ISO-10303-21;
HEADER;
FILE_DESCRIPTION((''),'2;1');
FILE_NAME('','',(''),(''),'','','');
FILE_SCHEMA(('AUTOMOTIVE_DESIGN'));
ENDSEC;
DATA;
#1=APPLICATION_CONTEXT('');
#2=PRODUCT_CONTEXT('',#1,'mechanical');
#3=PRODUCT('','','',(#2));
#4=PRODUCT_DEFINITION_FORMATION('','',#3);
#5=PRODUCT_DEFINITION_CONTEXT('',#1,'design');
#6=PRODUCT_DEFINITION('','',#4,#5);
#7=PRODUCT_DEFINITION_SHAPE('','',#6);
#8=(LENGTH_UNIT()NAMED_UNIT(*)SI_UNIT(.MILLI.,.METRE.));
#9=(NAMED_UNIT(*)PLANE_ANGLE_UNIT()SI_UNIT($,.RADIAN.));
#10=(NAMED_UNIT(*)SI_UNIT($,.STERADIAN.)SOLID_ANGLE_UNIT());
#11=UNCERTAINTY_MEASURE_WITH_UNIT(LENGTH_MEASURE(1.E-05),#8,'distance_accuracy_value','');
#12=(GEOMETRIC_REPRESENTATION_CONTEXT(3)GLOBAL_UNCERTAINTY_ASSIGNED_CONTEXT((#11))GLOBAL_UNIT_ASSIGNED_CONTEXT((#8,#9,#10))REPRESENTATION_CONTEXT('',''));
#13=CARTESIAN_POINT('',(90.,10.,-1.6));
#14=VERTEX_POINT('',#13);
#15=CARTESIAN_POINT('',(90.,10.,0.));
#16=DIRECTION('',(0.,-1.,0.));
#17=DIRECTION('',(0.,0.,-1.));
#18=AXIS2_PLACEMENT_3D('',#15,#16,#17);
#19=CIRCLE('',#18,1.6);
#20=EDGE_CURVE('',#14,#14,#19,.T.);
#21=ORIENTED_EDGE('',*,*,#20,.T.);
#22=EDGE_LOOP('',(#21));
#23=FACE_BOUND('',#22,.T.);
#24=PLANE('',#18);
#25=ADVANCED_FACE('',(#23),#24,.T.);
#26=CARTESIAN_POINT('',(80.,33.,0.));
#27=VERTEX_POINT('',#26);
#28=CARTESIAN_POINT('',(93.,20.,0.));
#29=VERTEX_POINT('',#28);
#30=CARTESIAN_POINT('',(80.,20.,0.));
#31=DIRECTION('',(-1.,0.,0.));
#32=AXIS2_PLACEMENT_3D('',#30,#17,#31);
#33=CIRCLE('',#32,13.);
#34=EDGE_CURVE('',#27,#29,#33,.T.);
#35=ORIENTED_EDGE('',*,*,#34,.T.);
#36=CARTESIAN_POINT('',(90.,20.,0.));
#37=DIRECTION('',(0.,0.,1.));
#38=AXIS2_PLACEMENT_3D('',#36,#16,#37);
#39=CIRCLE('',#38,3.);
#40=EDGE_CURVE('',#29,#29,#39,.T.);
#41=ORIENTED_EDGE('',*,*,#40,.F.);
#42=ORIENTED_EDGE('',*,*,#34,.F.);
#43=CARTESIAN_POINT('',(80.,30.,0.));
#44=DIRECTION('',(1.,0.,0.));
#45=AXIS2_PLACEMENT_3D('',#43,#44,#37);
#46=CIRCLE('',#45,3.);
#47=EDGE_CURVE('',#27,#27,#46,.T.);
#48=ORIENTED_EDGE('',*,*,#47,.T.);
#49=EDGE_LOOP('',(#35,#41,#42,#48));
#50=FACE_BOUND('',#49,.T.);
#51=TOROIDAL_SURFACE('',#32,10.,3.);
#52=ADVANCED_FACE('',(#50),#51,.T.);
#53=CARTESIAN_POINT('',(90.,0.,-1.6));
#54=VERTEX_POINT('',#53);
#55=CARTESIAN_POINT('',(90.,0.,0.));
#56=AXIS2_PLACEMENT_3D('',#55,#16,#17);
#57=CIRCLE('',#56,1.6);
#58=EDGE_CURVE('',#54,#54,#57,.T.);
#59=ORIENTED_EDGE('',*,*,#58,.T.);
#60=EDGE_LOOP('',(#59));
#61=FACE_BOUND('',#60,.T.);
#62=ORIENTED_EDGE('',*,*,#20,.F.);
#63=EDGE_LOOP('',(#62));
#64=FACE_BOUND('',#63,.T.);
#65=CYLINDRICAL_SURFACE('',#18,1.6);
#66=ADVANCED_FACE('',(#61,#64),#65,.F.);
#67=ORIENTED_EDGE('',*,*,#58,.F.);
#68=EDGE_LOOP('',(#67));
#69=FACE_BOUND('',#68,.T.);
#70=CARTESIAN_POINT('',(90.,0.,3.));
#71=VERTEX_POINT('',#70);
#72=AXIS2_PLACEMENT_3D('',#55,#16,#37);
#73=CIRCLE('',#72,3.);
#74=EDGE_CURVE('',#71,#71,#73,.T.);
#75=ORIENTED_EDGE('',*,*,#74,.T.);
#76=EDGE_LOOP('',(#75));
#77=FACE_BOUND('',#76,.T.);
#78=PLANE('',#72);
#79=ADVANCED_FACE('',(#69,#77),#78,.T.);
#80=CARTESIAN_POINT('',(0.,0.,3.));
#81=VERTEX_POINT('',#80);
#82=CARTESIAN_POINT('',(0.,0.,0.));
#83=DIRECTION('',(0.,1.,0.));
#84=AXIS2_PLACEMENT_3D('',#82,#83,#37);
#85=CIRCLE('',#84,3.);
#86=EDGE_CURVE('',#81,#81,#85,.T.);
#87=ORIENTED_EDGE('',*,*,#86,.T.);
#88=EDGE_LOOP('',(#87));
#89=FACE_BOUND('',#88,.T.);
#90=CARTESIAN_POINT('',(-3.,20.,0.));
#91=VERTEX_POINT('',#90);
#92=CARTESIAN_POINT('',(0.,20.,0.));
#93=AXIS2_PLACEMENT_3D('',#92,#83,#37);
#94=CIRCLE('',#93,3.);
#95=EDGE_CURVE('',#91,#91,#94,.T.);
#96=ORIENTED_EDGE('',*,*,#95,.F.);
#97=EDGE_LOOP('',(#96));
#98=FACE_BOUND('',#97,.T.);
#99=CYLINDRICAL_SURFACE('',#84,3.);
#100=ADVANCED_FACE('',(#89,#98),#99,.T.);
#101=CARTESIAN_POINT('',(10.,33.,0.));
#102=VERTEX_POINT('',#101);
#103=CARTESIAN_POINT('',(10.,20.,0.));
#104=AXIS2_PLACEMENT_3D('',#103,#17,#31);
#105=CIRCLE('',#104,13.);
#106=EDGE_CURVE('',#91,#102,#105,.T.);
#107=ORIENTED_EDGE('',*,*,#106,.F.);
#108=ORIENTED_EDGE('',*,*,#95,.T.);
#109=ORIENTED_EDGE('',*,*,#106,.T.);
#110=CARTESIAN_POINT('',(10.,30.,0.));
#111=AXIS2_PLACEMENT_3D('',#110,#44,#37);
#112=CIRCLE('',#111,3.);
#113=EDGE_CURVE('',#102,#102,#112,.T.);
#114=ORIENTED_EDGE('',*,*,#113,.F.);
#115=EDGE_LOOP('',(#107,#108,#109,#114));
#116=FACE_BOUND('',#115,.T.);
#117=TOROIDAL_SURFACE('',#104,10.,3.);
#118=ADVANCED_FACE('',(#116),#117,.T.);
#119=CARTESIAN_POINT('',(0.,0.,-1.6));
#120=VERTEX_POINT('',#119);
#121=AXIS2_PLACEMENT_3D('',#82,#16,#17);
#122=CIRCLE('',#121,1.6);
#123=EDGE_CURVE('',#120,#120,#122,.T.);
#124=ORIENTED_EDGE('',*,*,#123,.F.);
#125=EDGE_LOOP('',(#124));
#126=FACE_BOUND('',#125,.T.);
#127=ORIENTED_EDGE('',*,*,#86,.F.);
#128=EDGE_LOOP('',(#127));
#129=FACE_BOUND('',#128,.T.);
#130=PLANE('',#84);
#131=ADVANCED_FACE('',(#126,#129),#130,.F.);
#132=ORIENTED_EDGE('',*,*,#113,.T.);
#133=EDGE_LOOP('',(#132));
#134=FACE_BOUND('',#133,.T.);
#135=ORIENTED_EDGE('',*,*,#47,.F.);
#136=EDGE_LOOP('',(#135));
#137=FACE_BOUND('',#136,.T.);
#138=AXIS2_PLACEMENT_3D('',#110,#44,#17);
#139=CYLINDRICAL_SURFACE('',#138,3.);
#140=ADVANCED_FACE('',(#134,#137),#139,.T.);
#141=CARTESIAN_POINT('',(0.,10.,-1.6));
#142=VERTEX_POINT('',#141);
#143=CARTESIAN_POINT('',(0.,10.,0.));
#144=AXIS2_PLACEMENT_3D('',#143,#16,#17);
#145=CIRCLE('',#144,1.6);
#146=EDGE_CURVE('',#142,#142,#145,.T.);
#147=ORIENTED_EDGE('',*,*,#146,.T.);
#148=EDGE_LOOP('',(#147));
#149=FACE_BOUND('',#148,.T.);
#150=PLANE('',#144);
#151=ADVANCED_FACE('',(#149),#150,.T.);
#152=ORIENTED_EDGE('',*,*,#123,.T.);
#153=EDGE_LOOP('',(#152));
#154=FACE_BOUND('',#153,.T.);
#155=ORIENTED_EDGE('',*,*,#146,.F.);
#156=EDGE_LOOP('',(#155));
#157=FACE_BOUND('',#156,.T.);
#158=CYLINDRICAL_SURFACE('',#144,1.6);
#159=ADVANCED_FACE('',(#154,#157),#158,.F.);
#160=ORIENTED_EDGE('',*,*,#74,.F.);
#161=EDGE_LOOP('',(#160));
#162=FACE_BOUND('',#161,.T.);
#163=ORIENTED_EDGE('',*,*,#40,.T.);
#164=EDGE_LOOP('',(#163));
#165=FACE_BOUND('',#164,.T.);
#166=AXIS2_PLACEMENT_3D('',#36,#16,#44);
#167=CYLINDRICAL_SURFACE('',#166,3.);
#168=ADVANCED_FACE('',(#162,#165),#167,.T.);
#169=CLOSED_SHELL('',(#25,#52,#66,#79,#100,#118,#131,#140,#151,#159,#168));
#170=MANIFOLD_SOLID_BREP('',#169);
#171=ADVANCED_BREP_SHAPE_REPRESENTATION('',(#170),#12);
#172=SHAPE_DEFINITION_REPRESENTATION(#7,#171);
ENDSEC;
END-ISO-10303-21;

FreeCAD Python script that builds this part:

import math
import FreeCAD as App
import Part
import Sketcher
Q = App.Units.Quantity

doc = App.newDocument("Part")
params = doc.addObject("Spreadsheet::Sheet", "Params")
for row, (alias, value) in enumerate([
    ("sketch1_diameter", "6 mm"),
    ("sketch2_radius", "10 mm"),
    ("sketch2_width", "70 mm"),
    ("sketch2_height", "20 mm"),
    ("sketch3_diameter", "3.2 mm"),
    ("pocket1_length", "10 mm"),
], start=1):
    params.set(f"A{row}", alias)
    params.set(f"B{row}", "=" + value)
    params.setAlias(f"B{row}", alias)

body = doc.addObject("PartDesign::Body", "Body")

# Sketch on XZ plane
sketch1 = body.newObject("Sketcher::SketchObject", "Sketch")
sketch1.AttachmentSupport = (doc.getObject("XZ_Plane"), [""])
sketch1.MapMode = "FlatFace"
sketch1.addGeometry(Part.Circle(App.Vector(0, 0, 0), App.Vector(0, 0, 1), 3), False)
sketch1.addConstraint([
    Sketcher.Constraint("Coincident", 0, 3, -1, 1),
    Sketcher.Constraint("Diameter", 0, Q("6 mm")),
])
sketch1.setExpression("Constraints[1]", "Params.sketch1_diameter")

# Sketch on XY plane
sketch2 = body.newObject("Sketcher::SketchObject", "Sketch001")
sketch2.AttachmentSupport = (doc.getObject("XY_Plane"), [""])
sketch2.MapMode = "FlatFace"
sketch2.addGeometry([
    Part.LineSegment(App.Vector(0, 0, 0), App.Vector(0, 20, 0)),  # 0
    Part.ArcOfCircle(Part.Circle(App.Vector(10, 20, 0), App.Vector(0, 0, 1), 10), math.radians(90), math.radians(180)),  # 1
    Part.LineSegment(App.Vector(10, 30, 0), App.Vector(80, 30, 0)),  # 2
    Part.ArcOfCircle(Part.Circle(App.Vector(80, 20, 0), App.Vector(0, 0, 1), 10), math.radians(0), math.radians(90)),  # 3
    Part.LineSegment(App.Vector(90, 20, 0), App.Vector(90, 0, 0)),  # 4
], False)
sketch2.addConstraint([
    Sketcher.Constraint("Tangent", 0, 2, 1, 2),
    Sketcher.Constraint("Tangent", 1, 1, 2, 1),
    Sketcher.Constraint("Tangent", 2, 2, 3, 2),
    Sketcher.Constraint("Tangent", 3, 1, 4, 1),
    Sketcher.Constraint("Vertical", 0),
    Sketcher.Constraint("Horizontal", 2),
    Sketcher.Constraint("Vertical", 4),
    Sketcher.Constraint("Coincident", 0, 1, -1, 1),
    Sketcher.Constraint("Equal", 1, 3),
    Sketcher.Constraint("PointOnObject", 4, 2, -1),
    Sketcher.Constraint("Radius", 1, Q("10 mm")),
    Sketcher.Constraint("DistanceX", 2, 1, 2, 2, Q("70 mm")),
    Sketcher.Constraint("DistanceY", 0, 1, 0, 2, Q("20 mm")),
])
sketch2.setExpression("Constraints[10]", "Params.sketch2_radius")
sketch2.setExpression("Constraints[11]", "Params.sketch2_width")
sketch2.setExpression("Constraints[12]", "Params.sketch2_height")
doc.recompute()

additivepipe = body.newObject("PartDesign::AdditivePipe", "AdditivePipe")
additivepipe.Profile = sketch1
additivepipe.Spine = (sketch2, ["Edge1", "Edge2", "Edge3", "Edge4", "Edge5"])

# Sketch on XZ plane
sketch3 = body.newObject("Sketcher::SketchObject", "Sketch002")
sketch3.AttachmentSupport = (doc.getObject("XZ_Plane"), [""])
sketch3.MapMode = "FlatFace"
sketch3.addGeometry([
    Part.Circle(App.Vector(0, 0, 0), App.Vector(0, 0, 1), 1.6),
    Part.Circle(App.Vector(90, 0, 0), App.Vector(0, 0, 1), 1.6),
], False)
sketch3.addConstraint([
    Sketcher.Constraint("Coincident", 0, 3, -1, 1),
    Sketcher.Constraint("Equal", 0, 1),
    Sketcher.Constraint("PointOnObject", 1, 3, -1),
    Sketcher.Constraint("Diameter", 0, Q("3.2 mm")),
    Sketcher.Constraint("DistanceX", -1, 1, 1, 3, Q("90 mm")),
])
sketch3.setExpression("Constraints[3]", "Params.sketch3_diameter")
pocket1 = body.newObject("PartDesign::Pocket", "Pocket")
pocket1.Profile = sketch3
pocket1.setExpression("Length", "Params.pocket1_length")

doc.recompute()
